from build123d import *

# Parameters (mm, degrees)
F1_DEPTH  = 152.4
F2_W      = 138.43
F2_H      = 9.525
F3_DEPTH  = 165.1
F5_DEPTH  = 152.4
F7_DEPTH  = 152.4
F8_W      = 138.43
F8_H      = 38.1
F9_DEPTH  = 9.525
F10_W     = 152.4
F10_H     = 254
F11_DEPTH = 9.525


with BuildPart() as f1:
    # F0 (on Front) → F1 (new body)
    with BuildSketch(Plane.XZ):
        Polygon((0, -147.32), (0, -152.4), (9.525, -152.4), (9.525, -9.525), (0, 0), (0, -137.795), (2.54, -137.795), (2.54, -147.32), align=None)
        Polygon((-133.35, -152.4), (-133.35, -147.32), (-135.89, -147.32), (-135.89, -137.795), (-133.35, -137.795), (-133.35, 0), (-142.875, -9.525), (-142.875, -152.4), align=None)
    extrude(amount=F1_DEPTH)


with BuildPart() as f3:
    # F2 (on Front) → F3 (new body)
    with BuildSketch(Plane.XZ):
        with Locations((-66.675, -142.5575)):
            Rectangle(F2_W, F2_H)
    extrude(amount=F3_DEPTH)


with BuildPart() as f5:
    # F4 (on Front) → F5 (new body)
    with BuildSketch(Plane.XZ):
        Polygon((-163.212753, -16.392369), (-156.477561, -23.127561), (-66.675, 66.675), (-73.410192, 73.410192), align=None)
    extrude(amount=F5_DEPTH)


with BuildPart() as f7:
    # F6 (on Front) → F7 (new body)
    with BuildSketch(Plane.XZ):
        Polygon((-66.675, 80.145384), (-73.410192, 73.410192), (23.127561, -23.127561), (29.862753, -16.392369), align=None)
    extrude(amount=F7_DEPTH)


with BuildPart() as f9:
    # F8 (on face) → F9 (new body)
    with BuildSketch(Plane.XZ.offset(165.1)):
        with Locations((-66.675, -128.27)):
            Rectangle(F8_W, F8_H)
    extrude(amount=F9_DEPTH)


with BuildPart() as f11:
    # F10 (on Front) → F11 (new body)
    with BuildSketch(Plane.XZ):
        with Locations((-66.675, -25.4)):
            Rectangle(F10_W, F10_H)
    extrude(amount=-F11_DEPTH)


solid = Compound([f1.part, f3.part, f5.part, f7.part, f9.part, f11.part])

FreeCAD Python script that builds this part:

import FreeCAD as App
import Part
import Sketcher
Q = App.Units.Quantity

doc = App.newDocument("Part")
params = doc.addObject("Spreadsheet::Sheet", "Params")
for row, (alias, value) in enumerate([
    ("sketch1_width", "0.1 in"),
    ("sketch1_height", "0.2 in"),
    ("sketch1_width2", "0.375 in"),
    ("pad1_length", "6 in"),
    ("sketch2_width", "5.45 in"),
    ("sketch2_height", "0.375 in"),
    ("pad2_length", "6.5 in"),
    ("sketch3_length", "5 in"),
    ("sketch3_length2", "0.375 in"),
    ("pad3_length", "6 in"),
    ("sketch4_length", "0.375 in"),
    ("sketch4_length2", "5.375 in"),
    ("pad4_length", "6 in"),
    ("sketch5_height", "1.5 in"),
    ("sketch5_width", "5.45 in"),
    ("pad5_length", "0.375 in"),
    ("sketch6_width", "6 in"),
    ("sketch6_height", "10 in"),
    ("pad6_length", "0.375 in"),
], start=1):
    params.set(f"A{row}", alias)
    params.set(f"B{row}", "=" + value)
    params.setAlias(f"B{row}", alias)

body = doc.addObject("PartDesign::Body", "Body")
body.AllowCompound = True

sketch1 = doc.addObject("Sketcher::SketchObject", "Sketch")
body.addObject(sketch1)
sketch1.AttachmentSupport = (doc.XZ_Plane, [""])
sketch1.MapMode = "FlatFace"
sketch1.addGeometry([
    Part.LineSegment(App.Vector(0, -147.3, 0), App.Vector(0, -152.4, 0)),
    Part.LineSegment(App.Vector(0, -152.4, 0), App.Vector(9.5, -152.4, 0)),
    Part.LineSegment(App.Vector(9.5, -152.4, 0), App.Vector(9.5, -9.5, 0)),
    Part.LineSegment(App.Vector(9.5, -9.5, 0), App.Vector(0, 0, 0)),
    Part.LineSegment(App.Vector(0, 0, 0), App.Vector(0, -137.8, 0)),
    Part.LineSegment(App.Vector(0, -137.8, 0), App.Vector(2.5, -137.8, 0)),
    Part.LineSegment(App.Vector(2.5, -137.8, 0), App.Vector(2.5, -147.3, 0)),
    Part.LineSegment(App.Vector(2.5, -147.3, 0), App.Vector(0, -147.3, 0)),
    Part.LineSegment(App.Vector(-133.3, -152.4, 0), App.Vector(-133.3, -147.3, 0)),
    Part.LineSegment(App.Vector(-133.3, -147.3, 0), App.Vector(-135.9, -147.3, 0)),
    Part.LineSegment(App.Vector(-135.9, -147.3, 0), App.Vector(-135.9, -137.8, 0)),
    Part.LineSegment(App.Vector(-135.9, -137.8, 0), App.Vector(-133.3, -137.8, 0)),
    Part.LineSegment(App.Vector(-133.3, -137.8, 0), App.Vector(-133.3, 0, 0)),
    Part.LineSegment(App.Vector(-133.3, 0, 0), App.Vector(-142.9, -9.5, 0)),
    Part.LineSegment(App.Vector(-142.9, -9.5, 0), App.Vector(-142.9, -152.4, 0)),
    Part.LineSegment(App.Vector(-142.9, -152.4, 0), App.Vector(-133.3, -152.4, 0)),
], False)
sketch1.addConstraint([
    Sketcher.Constraint("Coincident", 0, 2, 1, 1),
    Sketcher.Constraint("Coincident", 1, 2, 2, 1),
    Sketcher.Constraint("Coincident", 2, 2, 3, 1),
    Sketcher.Constraint("Coincident", 3, 2, 4, 1),
    Sketcher.Constraint("Coincident", 4, 2, 5, 1),
    Sketcher.Constraint("Coincident", 5, 2, 6, 1),
    Sketcher.Constraint("Coincident", 6, 2, 7, 1),
    Sketcher.Constraint("Coincident", 7, 2, 0, 1),
    Sketcher.Constraint("Coincident", 8, 2, 9, 1),
    Sketcher.Constraint("Coincident", 9, 2, 10, 1),
    Sketcher.Constraint("Coincident", 10, 2, 11, 1),
    Sketcher.Constraint("Coincident", 11, 2, 12, 1),
    Sketcher.Constraint("Coincident", 12, 2, 13, 1),
    Sketcher.Constraint("Coincident", 13, 2, 14, 1),
    Sketcher.Constraint("Coincident", 14, 2, 15, 1),
    Sketcher.Constraint("Coincident", 15, 2, 8, 1),
    Sketcher.Constraint("Vertical", 0),
    Sketcher.Constraint("Horizontal", 1),
    Sketcher.Constraint("Vertical", 2),
    Sketcher.Constraint("Vertical", 4),
    Sketcher.Constraint("Horizontal", 5),
    Sketcher.Constraint("Vertical", 6),
    Sketcher.Constraint("Horizontal", 7),
    Sketcher.Constraint("Vertical", 8),
    Sketcher.Constraint("Horizontal", 9),
    Sketcher.Constraint("Vertical", 10),
    Sketcher.Constraint("Horizontal", 11),
    Sketcher.Constraint("Vertical", 12),
    Sketcher.Constraint("Vertical", 14),
    Sketcher.Constraint("Horizontal", 15),
    Sketcher.Constraint("Coincident", 3, 2, -1, 1),
    Sketcher.Constraint("PointOnObject", 0, 2, -2),
    Sketcher.Constraint("PointOnObject", 12, 2, -1),
    Sketcher.Constraint("Perpendicular", 3, 13),
    Sketcher.Constraint("Horizontal", 7, 2, 8, 2),
    Sketcher.Constraint("Horizontal", 5, 2, 10, 2),
    Sketcher.Constraint("Horizontal", 2, 2, 13, 2),
    Sketcher.Constraint("Horizontal", 1, 2, 14, 2),
    Sketcher.Constraint("Vertical", 8, 2, 11, 2),
    Sketcher.Constraint("Equal", 7, 9),
    Sketcher.Constraint("Equal", 1, 15),
    Sketcher.Constraint("Equal", 15, 6),
    Sketcher.Constraint("DistanceX", 5, 1, 5, 2, Q("0.1 in")),
    Sketcher.Constraint("DistanceY", 0, 2, 0, 1, Q("0.2 in")),
    Sketcher.Constraint("DistanceY", 0, 2, -1, 1, Q("6 in")),
    Sketcher.Constraint("DistanceX", 1, 1, 1, 2, Q("0.375 in")),
    Sketcher.Constraint("DistanceX", 8, 2, -1, 1, Q("5.25 in")),
])
sketch1.setExpression("Constraints[42]", "Params.sketch1_width")
sketch1.setExpression("Constraints[43]", "Params.sketch1_height")
sketch1.setExpression("Constraints[45]", "Params.sketch1_width2")
pad1 = doc.addObject("PartDesign::Pad", "Pad")
body.addObject(pad1)
pad1.Profile = sketch1
pad1.setExpression("Length", "Params.pad1_length")
body2 = doc.addObject("PartDesign::Body", "Body001")

sketch2 = doc.addObject("Sketcher::SketchObject", "Sketch001")
body2.addObject(sketch2)
sketch2.AttachmentSupport = (doc.getObject("XZ_Plane001"), [""])
sketch2.MapMode = "FlatFace"
sketch2.addGeometry([
    Part.LineSegment(App.Vector(-136, -138, 0), App.Vector(-136, -147, 0)),
    Part.LineSegment(App.Vector(-136, -147, 0), App.Vector(3, -147, 0)),
    Part.LineSegment(App.Vector(3, -147, 0), App.Vector(3, -138, 0)),
    Part.LineSegment(App.Vector(3, -138, 0), App.Vector(-136, -138, 0)),
], False)
sketch2.addConstraint([
    Sketcher.Constraint("Coincident", 0, 2, 1, 1),
    Sketcher.Constraint("Coincident", 1, 2, 2, 1),
    Sketcher.Constraint("Coincident", 2, 2, 3, 1),
    Sketcher.Constraint("Coincident", 3, 2, 0, 1),
    Sketcher.Constraint("Vertical", 0),
    Sketcher.Constraint("Horizontal", 1),
    Sketcher.Constraint("Vertical", 2),
    Sketcher.Constraint("Horizontal", 3),
    Sketcher.Constraint("DistanceX", 1, 1, 1, 2, Q("5.45 in")),
    Sketcher.Constraint("DistanceY", 0, 2, -1, 1, Q("5.8 in")),
    Sketcher.Constraint("DistanceX", -1, 1, 1, 2, Q("0.1 in")),
    Sketcher.Constraint("DistanceY", 0, 2, 0, 1, Q("0.375 in")),
])
sketch2.setExpression("Constraints[8]", "Params.sketch2_width")
sketch2.setExpression("Constraints[11]", "Params.sketch2_height")
pad2 = doc.addObject("PartDesign::Pad", "Pad001")
body2.addObject(pad2)
pad2.Profile = sketch2
pad2.setExpression("Length", "Params.pad2_length")
body3 = doc.addObject("PartDesign::Body", "Body002")

sketch3 = doc.addObject("Sketcher::SketchObject", "Sketch002")
body3.addObject(sketch3)
sketch3.AttachmentSupport = (doc.getObject("XZ_Plane002"), [""])
sketch3.MapMode = "FlatFace"
sketch3.addGeometry([
    Part.LineSegment(App.Vector(-163, -16, 0), App.Vector(-156, -23, 0)),
    Part.LineSegment(App.Vector(-156, -23, 0), App.Vector(-67, 67, 0)),
    Part.LineSegment(App.Vector(-67, 67, 0), App.Vector(-73, 73, 0)),
    Part.LineSegment(App.Vector(-73, 73, 0), App.Vector(-163, -16, 0)),
], False)
sketch3.addConstraint([
    Sketcher.Constraint("Coincident", 0, 2, 1, 1),
    Sketcher.Constraint("Coincident", 1, 2, 2, 1),
    Sketcher.Constraint("Coincident", 2, 2, 3, 1),
    Sketcher.Constraint("Coincident", 3, 2, 0, 1),
    Sketcher.Constraint("Perpendicular", 0, 1),
    Sketcher.Constraint("Perpendicular", 1, 2),
    Sketcher.Constraint("Perpendicular", 2, 3),
    Sketcher.Constraint("Distance", 1, Q("5 in")),
    Sketcher.Constraint("Angle", 0, Q("-45 deg")),
    Sketcher.Constraint("Distance", 0, Q("0.375 in")),
    Sketcher.Constraint("DistanceX", 1, 2, -1, 1, Q("2.625 in")),
    Sketcher.Constraint("DistanceY", -1, 1, 1, 2, Q("2.625 in")),
])
sketch3.setExpression("Constraints[7]", "Params.sketch3_length")
sketch3.setExpression("Constraints[9]", "Params.sketch3_length2")
pad3 = doc.addObject("PartDesign::Pad", "Pad002")
body3.addObject(pad3)
pad3.Profile = sketch3
pad3.setExpression("Length", "Params.pad3_length")
body4 = doc.addObject("PartDesign::Body", "Body003")

sketch4 = doc.addObject("Sketcher::SketchObject", "Sketch003")
body4.addObject(sketch4)
sketch4.AttachmentSupport = (doc.getObject("XZ_Plane003"), [""])
sketch4.MapMode = "FlatFace"
sketch4.addGeometry([
    Part.LineSegment(App.Vector(-67, 80, 0), App.Vector(-73, 73, 0)),
    Part.LineSegment(App.Vector(-73, 73, 0), App.Vector(23, -23, 0)),
    Part.LineSegment(App.Vector(23, -23, 0), App.Vector(30, -16, 0)),
    Part.LineSegment(App.Vector(30, -16, 0), App.Vector(-67, 80, 0)),
], False)
sketch4.addConstraint([
    Sketcher.Constraint("Coincident", 0, 2, 1, 1),
    Sketcher.Constraint("Coincident", 1, 2, 2, 1),
    Sketcher.Constraint("Coincident", 2, 2, 3, 1),
    Sketcher.Constraint("Coincident", 3, 2, 0, 1),
    Sketcher.Constraint("Perpendicular", 0, 1),
    Sketcher.Constraint("Perpendicular", 1, 2),
    Sketcher.Constraint("Perpendicular", 2, 3),
    Sketcher.Constraint("Angle", 0, Q("-135 deg")),
    Sketcher.Constraint("Distance", 0, Q("0.375 in")),
    Sketcher.Constraint("Distance", 1, Q("5.375 in")),
    Sketcher.Constraint("DistanceX", 3, 2, -1, 1, Q("2.625 in")),
    Sketcher.Constraint("DistanceY", -1, 1, 0, 2, 73.410192),
])
sketch4.setExpression("Constraints[8]", "Params.sketch4_length")
sketch4.setExpression("Constraints[9]", "Params.sketch4_length2")
pad4 = doc.addObject("PartDesign::Pad", "Pad003")
body4.addObject(pad4)
pad4.Profile = sketch4
pad4.setExpression("Length", "Params.pad4_length")
body5 = doc.addObject("PartDesign::Body", "Body004")

sketch5 = doc.addObject("Sketcher::SketchObject", "Sketch004")
body5.addObject(sketch5)
sketch5.AttachmentSupport = (doc.getObject("XZ_Plane004"), [""])
sketch5.MapMode = "FlatFace"
sketch5.AttachmentOffset = App.Placement(App.Vector(0, 0, 6.5 * 25.4), App.Rotation())
sketch5.addGeometry([
    Part.LineSegment(App.Vector(-136, -109, 0), App.Vector(-136, -147, 0)),
    Part.LineSegment(App.Vector(-136, -147, 0), App.Vector(3, -147, 0)),
    Part.LineSegment(App.Vector(3, -147, 0), App.Vector(3, -109, 0)),
    Part.LineSegment(App.Vector(3, -109, 0), App.Vector(-136, -109, 0)),
], False)
sketch5.addConstraint([
    Sketcher.Constraint("Coincident", 0, 2, 1, 1),
    Sketcher.Constraint("Coincident", 1, 2, 2, 1),
    Sketcher.Constraint("Coincident", 2, 2, 3, 1),
    Sketcher.Constraint("Coincident", 3, 2, 0, 1),
    Sketcher.Constraint("Vertical", 0),
    Sketcher.Constraint("Horizontal", 1),
    Sketcher.Constraint("Vertical", 2),
    Sketcher.Constraint("Horizontal", 3),
    Sketcher.Constraint("DistanceY", 0, 2, 0, 1, Q("1.5 in")),
    Sketcher.Constraint("DistanceX", 1, 1, 1, 2, Q("5.45 in")),
    Sketcher.Constraint("DistanceY", 0, 2, -1, 1, Q("5.8 in")),
    Sketcher.Constraint("DistanceX", -1, 1, 1, 2, Q("0.1 in")),
])
sketch5.setExpression("Constraints[8]", "Params.sketch5_height")
sketch5.setExpression("Constraints[9]", "Params.sketch5_width")
pad5 = doc.addObject("PartDesign::Pad", "Pad004")
body5.addObject(pad5)
pad5.Profile = sketch5
pad5.setExpression("Length", "Params.pad5_length")
body6 = doc.addObject("PartDesign::Body", "Body005")

sketch6 = doc.addObject("Sketcher::SketchObject", "Sketch005")
body6.addObject(sketch6)
sketch6.AttachmentSupport = (doc.getObject("XZ_Plane005"), [""])
sketch6.MapMode = "FlatFace"
sketch6.addGeometry([
    Part.LineSegment(App.Vector(-143, 102, 0), App.Vector(-143, -152, 0)),
    Part.LineSegment(App.Vector(-143, -152, 0), App.Vector(10, -152, 0)),
    Part.LineSegment(App.Vector(10, -152, 0), App.Vector(10, 102, 0)),
    Part.LineSegment(App.Vector(10, 102, 0), App.Vector(-143, 102, 0)),
], False)
sketch6.addConstraint([
    Sketcher.Constraint("Coincident", 0, 2, 1, 1),
    Sketcher.Constraint("Coincident", 1, 2, 2, 1),
    Sketcher.Constraint("Coincident", 2, 2, 3, 1),
    Sketcher.Constraint("Coincident", 3, 2, 0, 1),
    Sketcher.Constraint("Vertical", 0),
    Sketcher.Constraint("Horizontal", 1),
    Sketcher.Constraint("Vertical", 2),
    Sketcher.Constraint("Horizontal", 3),
    Sketcher.Constraint("DistanceX", 1, 1, 1, 2, Q("6 in")),
    Sketcher.Constraint("DistanceY", 0, 2, 0, 1, Q("10 in")),
    Sketcher.Constraint("DistanceY", 0, 2, -1, 1, Q("6 in")),
    Sketcher.Constraint("DistanceX", 0, 2, -1, 1, Q("5.625 in")),
])
sketch6.setExpression("Constraints[8]", "Params.sketch6_width")
sketch6.setExpression("Constraints[9]", "Params.sketch6_height")
pad6 = doc.addObject("PartDesign::Pad", "Pad005")
body6.addObject(pad6)
pad6.Profile = sketch6
pad6.setExpression("Length", "Params.pad6_length")
pad6.Reversed = True

doc.recompute()
